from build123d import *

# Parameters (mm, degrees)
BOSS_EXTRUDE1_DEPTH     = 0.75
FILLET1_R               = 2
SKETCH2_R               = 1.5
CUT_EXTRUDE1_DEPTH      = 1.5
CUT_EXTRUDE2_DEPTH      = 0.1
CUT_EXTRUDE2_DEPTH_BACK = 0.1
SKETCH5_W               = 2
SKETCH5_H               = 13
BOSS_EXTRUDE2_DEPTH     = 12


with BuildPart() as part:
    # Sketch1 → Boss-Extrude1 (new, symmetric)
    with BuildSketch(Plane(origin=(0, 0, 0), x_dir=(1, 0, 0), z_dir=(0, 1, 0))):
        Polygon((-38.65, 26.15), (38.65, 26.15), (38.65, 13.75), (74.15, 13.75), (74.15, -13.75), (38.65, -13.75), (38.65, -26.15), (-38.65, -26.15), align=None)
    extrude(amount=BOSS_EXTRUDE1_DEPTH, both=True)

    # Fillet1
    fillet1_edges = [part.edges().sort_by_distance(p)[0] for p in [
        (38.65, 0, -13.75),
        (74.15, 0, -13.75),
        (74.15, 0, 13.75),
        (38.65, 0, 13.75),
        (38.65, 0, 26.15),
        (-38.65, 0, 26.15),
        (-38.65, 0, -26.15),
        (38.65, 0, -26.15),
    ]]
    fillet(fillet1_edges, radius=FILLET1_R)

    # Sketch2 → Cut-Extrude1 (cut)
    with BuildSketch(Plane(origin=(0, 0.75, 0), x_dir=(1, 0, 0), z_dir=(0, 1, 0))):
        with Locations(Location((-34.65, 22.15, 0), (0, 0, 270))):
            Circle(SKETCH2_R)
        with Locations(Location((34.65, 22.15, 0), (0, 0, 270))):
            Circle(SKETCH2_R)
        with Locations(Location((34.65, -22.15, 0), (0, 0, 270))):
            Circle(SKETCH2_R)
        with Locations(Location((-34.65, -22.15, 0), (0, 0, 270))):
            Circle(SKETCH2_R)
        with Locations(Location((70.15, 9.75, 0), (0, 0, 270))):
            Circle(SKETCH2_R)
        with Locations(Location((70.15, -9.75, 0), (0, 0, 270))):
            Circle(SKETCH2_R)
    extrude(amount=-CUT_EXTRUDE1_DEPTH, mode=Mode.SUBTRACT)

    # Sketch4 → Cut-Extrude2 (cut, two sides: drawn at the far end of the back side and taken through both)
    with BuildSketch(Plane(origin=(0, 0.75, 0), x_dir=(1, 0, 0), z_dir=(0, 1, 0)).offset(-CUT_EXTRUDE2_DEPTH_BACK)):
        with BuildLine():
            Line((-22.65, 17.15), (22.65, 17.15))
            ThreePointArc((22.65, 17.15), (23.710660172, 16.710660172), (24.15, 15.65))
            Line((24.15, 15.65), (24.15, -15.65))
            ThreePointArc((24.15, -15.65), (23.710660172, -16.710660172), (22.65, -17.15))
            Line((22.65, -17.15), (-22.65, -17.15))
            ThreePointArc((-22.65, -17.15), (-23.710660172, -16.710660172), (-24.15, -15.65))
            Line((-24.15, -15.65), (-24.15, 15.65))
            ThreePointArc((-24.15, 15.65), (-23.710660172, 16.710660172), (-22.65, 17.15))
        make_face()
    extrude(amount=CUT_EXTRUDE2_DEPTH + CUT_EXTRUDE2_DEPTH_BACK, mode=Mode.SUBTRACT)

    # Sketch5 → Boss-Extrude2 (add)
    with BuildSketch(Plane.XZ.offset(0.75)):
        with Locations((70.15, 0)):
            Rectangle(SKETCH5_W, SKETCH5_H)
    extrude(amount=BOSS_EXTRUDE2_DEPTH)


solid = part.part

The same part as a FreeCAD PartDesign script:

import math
import FreeCAD as App
import Part
import Sketcher

V = App.Vector


def edges_at(feature, points):
    """Names of the edges that pass closest to the given points."""
    edges = feature.Shape.Edges
    near = lambda p: min(range(len(edges)), key=lambda i: edges[i].distToShape(Part.Vertex(*p))[0])
    return sorted({f"Edge{near(p) + 1}" for p in points})


def add_polygon(sketch, points):
    """Adds a closed chain of lines whose ends are joined by coincident constraints."""
    first, n = sketch.GeometryCount, len(points)
    for a, b in zip(points, points[1:] + points[:1]):
        sketch.addGeometry(Part.LineSegment(App.Vector(*a, 0), App.Vector(*b, 0)), False)
    for i in range(n):
        sketch.addConstraint(Sketcher.Constraint("Coincident", first + i, 2, first + (i + 1) % n, 1))

doc = App.newDocument("Part")
body = doc.addObject("PartDesign::Body", "Body")

sketch1 = body.newObject("Sketcher::SketchObject", "Sketch")
sketch1.AttachmentSupport = (doc.getObject("XZ_Plane"), [""])
sketch1.MapMode = "FlatFace"
add_polygon(sketch1, [(39, -26), (-39, -26), (-39, 26), (39, 26), (39, 14), (74, 14), (74, -14), (39, -14)])
sketch1.addConstraint([
    Sketcher.Constraint("Horizontal", 0),
    Sketcher.Constraint("Vertical", 1),
    Sketcher.Constraint("Horizontal", 2),
    Sketcher.Constraint("Vertical", 3),
    Sketcher.Constraint("Horizontal", 4),
    Sketcher.Constraint("Vertical", 5),
    Sketcher.Constraint("Horizontal", 6),
    Sketcher.Constraint("Vertical", 7),
    Sketcher.Constraint("Symmetric", 0, 2, 2, 2, -1, 1),
    Sketcher.Constraint("Symmetric", 3, 2, 6, 2, -1),
    Sketcher.Constraint("DistanceX", 0, 2, 0, 1, 77.3),
    Sketcher.Constraint("DistanceX", 4, 1, 4, 2, 35.5),
    Sketcher.Constraint("DistanceY", 1, 1, 1, 2, 52.3),
    Sketcher.Constraint("DistanceY", 3, 2, 3, 1, 12.4),
])
pad1 = body.newObject("PartDesign::Pad", "Pad")
pad1.Profile = sketch1
pad1.Length = 1.5
pad1.Midplane = True
doc.recompute()

fillet = body.newObject("PartDesign::Fillet", "Fillet")
fillet.Base = (pad1, edges_at(pad1, [
    (38.65, 0, -13.75),
    (74.15, 0, -13.75),
    (74.15, 0, 13.75),
    (38.65, 0, 13.75),
    (38.65, 0, 26.15),
    (-38.65, 0, 26.15),
    (-38.65, 0, -26.15),
    (38.65, 0, -26.15),
]))
fillet.Radius = 2

sketch2 = body.newObject("Sketcher::SketchObject", "Sketch001")
sketch2.AttachmentSupport = (doc.getObject("XZ_Plane"), [""])
sketch2.MapMode = "FlatFace"
sketch2.AttachmentOffset = App.Placement(V(0, 0, -0.75), App.Rotation())
sketch2.addGeometry([
    Part.Circle(V(-34.6, -22.1, 0), V(0, 0, 1), 1.5),
    Part.Circle(V(34.6, -22.1, 0), V(0, 0, 1), 1.5),
    Part.Circle(V(34.6, 22.1, 0), V(0, 0, 1), 1.5),
    Part.Circle(V(-34.6, 22.1, 0), V(0, 0, 1), 1.5),
    Part.Circle(V(70.2, -9.8, 0), V(0, 0, 1), 1.5),
    Part.Circle(V(70.2, 9.8, 0), V(0, 0, 1), 1.5),
], False)
sketch2.addConstraint([
    Sketcher.Constraint("Equal", 0, 1),
    Sketcher.Constraint("Equal", 1, 2),
    Sketcher.Constraint("Equal", 2, 3),
    Sketcher.Constraint("Equal", 3, 4),
    Sketcher.Constraint("Equal", 4, 5),
    Sketcher.Constraint("Symmetric", 0, 3, 2, 3, -1, 1),
    Sketcher.Constraint("Symmetric", 1, 3, 3, 3, -1, 1),
    Sketcher.Constraint("Symmetric", 0, 3, 1, 3, -2),
    Sketcher.Constraint("Symmetric", 4, 3, 5, 3, -1),
    Sketcher.Constraint("Diameter", 0, 3.0),
    Sketcher.Constraint("DistanceX", 0, 3, 1, 3, 69.3),
    Sketcher.Constraint("DistanceY", 1, 3, 2, 3, 44.3),
    Sketcher.Constraint("DistanceX", 1, 3, 4, 3, 35.5),
    Sketcher.Constraint("DistanceY", 1, 3, 4, 3, 12.4),
])
pocket1 = body.newObject("PartDesign::Pocket", "Pocket")
pocket1.Profile = sketch2
pocket1.Length = 1.5
pocket1.Reversed = True

sketch3 = body.newObject("Sketcher::SketchObject", "Sketch002")
sketch3.AttachmentSupport = (doc.getObject("XZ_Plane"), [""])
sketch3.MapMode = "FlatFace"
sketch3.AttachmentOffset = App.Placement(V(0, 0, -0.75), App.Rotation())
sketch3.addGeometry([
    Part.LineSegment(V(22.6, -17.1, 0), V(-22.6, -17.1, 0)),
    Part.ArcOfCircle(Part.Circle(V(-22.7, -15.7, 0), V(0, 0, 1), 1.5), math.radians(180), math.radians(270)),
    Part.LineSegment(V(-24.1, -15.7, 0), V(-24.1, 15.7, 0)),
    Part.ArcOfCircle(Part.Circle(V(-22.7, 15.7, 0), V(0, 0, 1), 1.5), math.radians(90), math.radians(180)),
    Part.LineSegment(V(-22.6, 17.1, 0), V(22.6, 17.1, 0)),
    Part.ArcOfCircle(Part.Circle(V(22.7, 15.7, 0), V(0, 0, 1), 1.5), math.radians(0), math.radians(90)),
    Part.LineSegment(V(24.1, 15.7, 0), V(24.1, -15.7, 0)),
    Part.ArcOfCircle(Part.Circle(V(22.7, -15.7, 0), V(0, 0, 1), 1.5), math.radians(-90), math.radians(0)),
], False)
sketch3.addConstraint([
    Sketcher.Constraint("Tangent", 0, 2, 1, 2),
    Sketcher.Constraint("Tangent", 1, 1, 2, 1),
    Sketcher.Constraint("Tangent", 2, 2, 3, 2),
    Sketcher.Constraint("Tangent", 3, 1, 4, 1),
    Sketcher.Constraint("Tangent", 4, 2, 5, 2),
    Sketcher.Constraint("Tangent", 5, 1, 6, 1),
    Sketcher.Constraint("Tangent", 6, 2, 7, 2),
    Sketcher.Constraint("Tangent", 7, 1, 0, 1),
    Sketcher.Constraint("Horizontal", 0),
    Sketcher.Constraint("Vertical", 2),
    Sketcher.Constraint("Horizontal", 4),
    Sketcher.Constraint("Vertical", 6),
    Sketcher.Constraint("Equal", 1, 3),
    Sketcher.Constraint("Equal", 3, 5),
    Sketcher.Constraint("Equal", 5, 7),
    Sketcher.Constraint("Symmetric", 1, 3, 5, 3, -1, 1),
    Sketcher.Constraint("Radius", 1, 1.5),
    Sketcher.Constraint("DistanceX", 0, 2, 0, 1, 45.3),
    Sketcher.Constraint("DistanceY", 2, 1, 2, 2, 31.3),
])
pocket2 = body.newObject("PartDesign::Pocket", "Pocket001")
pocket2.Profile = sketch3
pocket2.Type = "TwoLengths"
pocket2.Length = 0.1
pocket2.Length2 = 0.1

sketch4 = body.newObject("Sketcher::SketchObject", "Sketch003")
sketch4.AttachmentSupport = (doc.getObject("XZ_Plane"), [""])
sketch4.MapMode = "FlatFace"
sketch4.AttachmentOffset = App.Placement(V(0, 0, 0.75), App.Rotation())
add_polygon(sketch4, [(69.2, 6.5), (69.2, -6.5), (71.2, -6.5), (71.2, 6.5)])
sketch4.addConstraint([
    Sketcher.Constraint("Vertical", 0),
    Sketcher.Constraint("Horizontal", 1),
    Sketcher.Constraint("Vertical", 2),
    Sketcher.Constraint("Horizontal", 3),
    Sketcher.Constraint("DistanceX", 1, 1, 1, 2, 2.0),
    Sketcher.Constraint("DistanceY", 0, 2, 0, 1, 13.0),
    Sketcher.Constraint("DistanceY", 0, 2, -1, 1, 6.5),
    Sketcher.Constraint("DistanceX", -1, 1, 0, 2, 69.15),
])
pad2 = body.newObject("PartDesign::Pad", "Pad001")
pad2.Profile = sketch4
pad2.Length = 12

doc.recompute()
